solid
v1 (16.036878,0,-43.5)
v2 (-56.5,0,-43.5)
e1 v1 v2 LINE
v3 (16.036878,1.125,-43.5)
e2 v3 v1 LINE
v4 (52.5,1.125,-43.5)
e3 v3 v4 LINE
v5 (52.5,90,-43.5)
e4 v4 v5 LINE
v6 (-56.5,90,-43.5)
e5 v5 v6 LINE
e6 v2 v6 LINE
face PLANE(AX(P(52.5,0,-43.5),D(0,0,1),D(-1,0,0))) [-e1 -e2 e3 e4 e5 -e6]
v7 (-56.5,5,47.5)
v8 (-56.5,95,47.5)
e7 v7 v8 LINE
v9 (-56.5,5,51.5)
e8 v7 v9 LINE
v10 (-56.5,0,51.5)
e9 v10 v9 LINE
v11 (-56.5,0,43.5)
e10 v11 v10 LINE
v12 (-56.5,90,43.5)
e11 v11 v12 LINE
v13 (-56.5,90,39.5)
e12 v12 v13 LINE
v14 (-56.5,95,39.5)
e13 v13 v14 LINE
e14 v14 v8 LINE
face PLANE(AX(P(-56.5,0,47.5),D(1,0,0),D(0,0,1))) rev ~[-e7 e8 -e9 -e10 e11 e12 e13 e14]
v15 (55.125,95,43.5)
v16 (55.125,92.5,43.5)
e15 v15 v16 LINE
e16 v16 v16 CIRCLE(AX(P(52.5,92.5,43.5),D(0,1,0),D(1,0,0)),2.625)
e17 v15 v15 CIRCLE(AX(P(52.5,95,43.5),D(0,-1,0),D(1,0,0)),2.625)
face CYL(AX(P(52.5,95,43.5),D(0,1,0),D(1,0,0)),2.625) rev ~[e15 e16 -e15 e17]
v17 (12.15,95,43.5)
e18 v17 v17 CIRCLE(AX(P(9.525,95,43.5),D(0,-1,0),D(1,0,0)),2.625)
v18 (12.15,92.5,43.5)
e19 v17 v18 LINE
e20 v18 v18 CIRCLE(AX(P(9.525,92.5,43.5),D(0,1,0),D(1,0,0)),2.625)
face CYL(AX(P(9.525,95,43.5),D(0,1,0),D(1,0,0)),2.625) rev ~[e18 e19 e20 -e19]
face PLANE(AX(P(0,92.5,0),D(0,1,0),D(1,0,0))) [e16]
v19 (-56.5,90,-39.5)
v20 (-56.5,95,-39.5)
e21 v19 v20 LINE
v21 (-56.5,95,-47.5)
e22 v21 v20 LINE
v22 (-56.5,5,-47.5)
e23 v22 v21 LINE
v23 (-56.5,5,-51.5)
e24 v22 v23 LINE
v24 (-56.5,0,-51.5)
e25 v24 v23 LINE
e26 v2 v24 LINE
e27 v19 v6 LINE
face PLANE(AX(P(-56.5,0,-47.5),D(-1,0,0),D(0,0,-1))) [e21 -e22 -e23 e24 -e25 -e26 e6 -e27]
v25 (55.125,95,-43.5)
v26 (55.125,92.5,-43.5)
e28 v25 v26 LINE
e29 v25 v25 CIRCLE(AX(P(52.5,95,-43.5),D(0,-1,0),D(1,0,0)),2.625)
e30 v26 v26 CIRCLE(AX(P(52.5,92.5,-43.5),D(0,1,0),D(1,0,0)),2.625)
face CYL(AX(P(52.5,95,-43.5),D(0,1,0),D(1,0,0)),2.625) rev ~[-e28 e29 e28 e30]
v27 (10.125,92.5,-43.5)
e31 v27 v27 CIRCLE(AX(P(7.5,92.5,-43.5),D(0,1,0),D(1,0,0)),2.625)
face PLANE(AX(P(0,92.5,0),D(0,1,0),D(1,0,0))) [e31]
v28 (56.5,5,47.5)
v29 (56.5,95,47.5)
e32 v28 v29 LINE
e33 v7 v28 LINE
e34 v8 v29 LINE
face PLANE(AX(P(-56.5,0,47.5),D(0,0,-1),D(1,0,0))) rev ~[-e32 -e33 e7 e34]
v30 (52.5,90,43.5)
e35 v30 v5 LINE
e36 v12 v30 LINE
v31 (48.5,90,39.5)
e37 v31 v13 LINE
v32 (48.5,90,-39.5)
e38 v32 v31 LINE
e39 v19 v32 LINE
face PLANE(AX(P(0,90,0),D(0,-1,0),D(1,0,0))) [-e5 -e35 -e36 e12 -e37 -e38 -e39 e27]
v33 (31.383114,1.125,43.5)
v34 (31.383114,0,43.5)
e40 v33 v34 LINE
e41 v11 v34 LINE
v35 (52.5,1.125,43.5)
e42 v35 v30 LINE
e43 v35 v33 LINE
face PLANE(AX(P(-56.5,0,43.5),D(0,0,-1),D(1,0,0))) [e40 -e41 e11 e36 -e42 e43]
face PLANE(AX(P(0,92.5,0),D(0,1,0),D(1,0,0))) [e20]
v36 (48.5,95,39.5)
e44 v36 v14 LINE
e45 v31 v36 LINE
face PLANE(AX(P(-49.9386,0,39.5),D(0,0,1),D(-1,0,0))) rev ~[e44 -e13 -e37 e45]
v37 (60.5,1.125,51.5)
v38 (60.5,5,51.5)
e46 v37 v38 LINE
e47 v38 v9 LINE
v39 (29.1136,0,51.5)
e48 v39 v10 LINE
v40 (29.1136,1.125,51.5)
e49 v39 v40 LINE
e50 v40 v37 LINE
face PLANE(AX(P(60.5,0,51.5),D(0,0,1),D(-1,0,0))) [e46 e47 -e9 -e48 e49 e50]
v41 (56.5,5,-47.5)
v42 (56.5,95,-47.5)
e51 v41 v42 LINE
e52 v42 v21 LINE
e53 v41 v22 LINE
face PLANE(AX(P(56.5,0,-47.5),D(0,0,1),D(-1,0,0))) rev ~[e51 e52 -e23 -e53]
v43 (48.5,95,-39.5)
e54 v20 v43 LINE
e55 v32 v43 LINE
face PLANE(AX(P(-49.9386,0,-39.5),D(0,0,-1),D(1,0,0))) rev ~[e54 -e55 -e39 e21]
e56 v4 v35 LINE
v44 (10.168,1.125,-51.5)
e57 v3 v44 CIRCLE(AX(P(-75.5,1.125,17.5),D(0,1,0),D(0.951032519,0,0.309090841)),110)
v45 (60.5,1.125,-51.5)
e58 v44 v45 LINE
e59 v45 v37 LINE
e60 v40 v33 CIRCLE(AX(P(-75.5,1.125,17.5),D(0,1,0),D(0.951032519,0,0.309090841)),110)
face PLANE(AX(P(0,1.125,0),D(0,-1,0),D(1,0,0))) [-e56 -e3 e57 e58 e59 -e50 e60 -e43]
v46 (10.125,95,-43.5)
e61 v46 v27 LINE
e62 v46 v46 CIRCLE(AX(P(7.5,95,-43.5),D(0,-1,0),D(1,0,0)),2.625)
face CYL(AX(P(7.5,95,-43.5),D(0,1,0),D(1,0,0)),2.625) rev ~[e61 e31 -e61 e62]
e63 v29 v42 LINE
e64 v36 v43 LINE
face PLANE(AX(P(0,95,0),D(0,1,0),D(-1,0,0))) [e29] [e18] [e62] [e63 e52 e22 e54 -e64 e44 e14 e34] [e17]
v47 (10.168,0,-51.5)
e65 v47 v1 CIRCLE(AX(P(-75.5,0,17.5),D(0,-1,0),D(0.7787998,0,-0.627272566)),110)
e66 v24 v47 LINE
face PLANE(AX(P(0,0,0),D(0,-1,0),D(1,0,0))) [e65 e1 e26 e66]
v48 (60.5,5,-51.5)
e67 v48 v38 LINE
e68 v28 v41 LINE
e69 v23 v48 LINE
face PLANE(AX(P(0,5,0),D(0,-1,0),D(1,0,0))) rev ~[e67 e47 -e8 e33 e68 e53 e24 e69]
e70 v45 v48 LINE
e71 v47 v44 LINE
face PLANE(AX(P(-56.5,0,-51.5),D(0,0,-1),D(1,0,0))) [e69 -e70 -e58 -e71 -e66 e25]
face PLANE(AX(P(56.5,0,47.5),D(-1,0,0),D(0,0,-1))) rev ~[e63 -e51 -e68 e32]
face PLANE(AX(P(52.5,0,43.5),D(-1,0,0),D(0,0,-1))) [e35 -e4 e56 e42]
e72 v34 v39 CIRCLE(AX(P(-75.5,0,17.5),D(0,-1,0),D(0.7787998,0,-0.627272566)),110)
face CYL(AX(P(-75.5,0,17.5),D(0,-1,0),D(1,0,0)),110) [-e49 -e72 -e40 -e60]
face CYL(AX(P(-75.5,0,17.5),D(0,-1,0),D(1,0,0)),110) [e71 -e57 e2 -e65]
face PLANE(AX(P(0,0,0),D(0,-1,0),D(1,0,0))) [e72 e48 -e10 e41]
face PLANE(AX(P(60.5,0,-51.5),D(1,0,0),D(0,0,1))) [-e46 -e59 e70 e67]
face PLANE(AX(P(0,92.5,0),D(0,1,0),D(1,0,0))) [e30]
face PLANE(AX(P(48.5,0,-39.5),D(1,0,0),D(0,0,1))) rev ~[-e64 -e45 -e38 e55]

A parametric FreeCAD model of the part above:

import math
import FreeCAD as App
import Part
import Sketcher
from FreeCAD import Vector


def add_polygon(sketch, points):
    """Adds a closed chain of lines whose ends are joined by coincident constraints."""
    first, n = sketch.GeometryCount, len(points)
    for a, b in zip(points, points[1:] + points[:1]):
        sketch.addGeometry(Part.LineSegment(App.Vector(*a, 0), App.Vector(*b, 0)), False)
    for i in range(n):
        sketch.addConstraint(Sketcher.Constraint("Coincident", first + i, 2, first + (i + 1) % n, 1))

doc = App.newDocument("Part")
body = doc.addObject("PartDesign::Body", "Body")

sketch1 = body.newObject("Sketcher::SketchObject", "Sketch")
sketch1.AttachmentSupport = (doc.getObject("XZ_Plane"), [""])
sketch1.MapMode = "FlatFace"
add_polygon(sketch1, [(56.5, 47.5), (56.5, -47.5), (-56.5, -47.5), (-56.5, 47.5)])
sketch1.addConstraint(Sketcher.Constraint("Vertical", 0))
sketch1.addConstraint(Sketcher.Constraint("Horizontal", 1))
sketch1.addConstraint(Sketcher.Constraint("Vertical", 2))
sketch1.addConstraint(Sketcher.Constraint("Horizontal", 3))
sketch1.addConstraint(Sketcher.Constraint("Symmetric", 0, 2, 2, 2, -1, 1))
sketch1.addConstraint(Sketcher.Constraint("DistanceX", 1, 2, 1, 1, 113.0))
sketch1.addConstraint(Sketcher.Constraint("DistanceY", 0, 2, 0, 1, 95.0))
pad1 = body.newObject("PartDesign::Pad", "Pad")
pad1.Profile = sketch1
pad1.Length = 95
pad1.Reversed = True

sketch2 = body.newObject("Sketcher::SketchObject", "Sketch001")
sketch2.AttachmentSupport = (doc.getObject("XZ_Plane"), [""])
sketch2.MapMode = "FlatFace"
add_polygon(sketch2, [(48.5, 39.5), (-56.5, 39.5), (-56.5, -39.5), (48.5, -39.5)])
sketch2.addConstraint(Sketcher.Constraint("Horizontal", 0))
sketch2.addConstraint(Sketcher.Constraint("Vertical", 1))
sketch2.addConstraint(Sketcher.Constraint("Horizontal", 2))
sketch2.addConstraint(Sketcher.Constraint("Vertical", 3))
sketch2.addConstraint(Sketcher.Constraint("DistanceX", 0, 2, 0, 1, 105.0))
sketch2.addConstraint(Sketcher.Constraint("DistanceY", 1, 2, 1, 1, 79.0))
sketch2.addConstraint(Sketcher.Constraint("DistanceX", 0, 2, -1, 1, 56.5))
sketch2.addConstraint(Sketcher.Constraint("DistanceY", -1, 1, 0, 2, 39.5))
pocket1 = body.newObject("PartDesign::Pocket", "Pocket")
pocket1.Profile = sketch2
pocket1.Length = 115

sketch3 = body.newObject("Sketcher::SketchObject", "Sketch002")
sketch3.AttachmentSupport = (doc.getObject("XZ_Plane"), [""])
sketch3.MapMode = "FlatFace"
add_polygon(sketch3, [(52.5, 43.5), (-56.5, 43.5), (-56.5, 39.5), (48.5, 39.5), (48.5, -39.5), (-56.5, -39.5), (-56.5, -43.5), (52.5, -43.5)])
sketch3.addConstraint(Sketcher.Constraint("Horizontal", 0))
sketch3.addConstraint(Sketcher.Constraint("Vertical", 1))
sketch3.addConstraint(Sketcher.Constraint("Horizontal", 2))
sketch3.addConstraint(Sketcher.Constraint("Vertical", 3))
sketch3.addConstraint(Sketcher.Constraint("Horizontal", 4))
sketch3.addConstraint(Sketcher.Constraint("Vertical", 5))
sketch3.addConstraint(Sketcher.Constraint("Horizontal", 6))
sketch3.addConstraint(Sketcher.Constraint("Vertical", 7))
sketch3.addConstraint(Sketcher.Constraint("Symmetric", 1, 2, 4, 2, -1))
sketch3.addConstraint(Sketcher.Constraint("Equal", 1, 5))
sketch3.addConstraint(Sketcher.Constraint("DistanceY", 1, 2, 1, 1, 4.0))
sketch3.addConstraint(Sketcher.Constraint("DistanceX", 3, 2, 6, 2, 4.0))
sketch3.addConstraint(Sketcher.Constraint("DistanceX", 0, 2, 0, 1, 109.0))
sketch3.addConstraint(Sketcher.Constraint("DistanceY", 3, 2, 3, 1, 79.0))
sketch3.addConstraint(Sketcher.Constraint("DistanceX", 0, 2, -1, 1, 56.5))
pocket2 = body.newObject("PartDesign::Pocket", "Pocket001")
pocket2.Profile = sketch3
pocket2.Length = 90

sketch4 = body.newObject("Sketcher::SketchObject", "Sketch003")
sketch4.AttachmentSupport = (doc.getObject("XZ_Plane"), [""])
sketch4.MapMode = "FlatFace"
add_polygon(sketch4, [(56.5, 47.5), (56.5, -47.5), (-56.5, -47.5), (-56.5, -51.5), (60.5, -51.5), (60.5, 51.5), (-56.5, 51.5), (-56.5, 47.5)])
sketch4.addConstraint(Sketcher.Constraint("Vertical", 0))
sketch4.addConstraint(Sketcher.Constraint("Horizontal", 1))
sketch4.addConstraint(Sketcher.Constraint("Vertical", 2))
sketch4.addConstraint(Sketcher.Constraint("Horizontal", 3))
sketch4.addConstraint(Sketcher.Constraint("Vertical", 4))
sketch4.addConstraint(Sketcher.Constraint("Horizontal", 5))
sketch4.addConstraint(Sketcher.Constraint("Vertical", 6))
sketch4.addConstraint(Sketcher.Constraint("Horizontal", 7))
sketch4.addConstraint(Sketcher.Constraint("Symmetric", 0, 2, 6, 2, -1, 1))
sketch4.addConstraint(Sketcher.Constraint("Symmetric", 2, 2, 5, 2, -1))
sketch4.addConstraint(Sketcher.Constraint("DistanceY", 2, 2, 2, 1, 4.0))
sketch4.addConstraint(Sketcher.Constraint("DistanceX", 0, 2, 3, 2, 4.0))
sketch4.addConstraint(Sketcher.Constraint("DistanceX", 1, 2, 1, 1, 113.0))
sketch4.addConstraint(Sketcher.Constraint("DistanceY", 0, 2, 0, 1, 95.0))
pad2 = body.newObject("PartDesign::Pad", "Pad001")
pad2.Profile = sketch4
pad2.Length = 5
pad2.Reversed = True

sketch5 = body.newObject("Sketcher::SketchObject", "Sketch004")
sketch5.AttachmentSupport = (doc.getObject("XZ_Plane"), [""])
sketch5.MapMode = "FlatFace"
sketch5.addGeometry(Part.LineSegment(Vector(10.168, -51.5, 0), Vector(60.5, -51.5, 0)), False)
sketch5.addGeometry(Part.LineSegment(Vector(60.5, -51.5, 0), Vector(60.5, 51.5, 0)), False)
sketch5.addGeometry(Part.LineSegment(Vector(60.5, 51.5, 0), Vector(29.1136, 51.5, 0)), False)
sketch5.addGeometry(Part.ArcOfCircle(Part.Circle(Vector(-75.5, 17.5, 0), Vector(0, 0, 1), 110), math.radians(-38.849183), math.radians(18.004449)), False)
sketch5.addConstraint(Sketcher.Constraint("Coincident", 0, 2, 1, 1))
sketch5.addConstraint(Sketcher.Constraint("Coincident", 1, 2, 2, 1))
sketch5.addConstraint(Sketcher.Constraint("Coincident", 2, 2, 3, 2))
sketch5.addConstraint(Sketcher.Constraint("Coincident", 3, 1, 0, 1))
sketch5.addConstraint(Sketcher.Constraint("Horizontal", 0))
sketch5.addConstraint(Sketcher.Constraint("Vertical", 1))
sketch5.addConstraint(Sketcher.Constraint("Horizontal", 2))
sketch5.addConstraint(Sketcher.Constraint("Radius", 3, 110.0))
sketch5.addConstraint(Sketcher.Constraint("DistanceX", 3, 3, 0, 2, 136.0))
sketch5.addConstraint(Sketcher.Constraint("DistanceY", 1, 1, 1, 2, 103.0))
sketch5.addConstraint(Sketcher.Constraint("DistanceY", 0, 2, 3, 3, 69.0))
sketch5.addConstraint(Sketcher.Constraint("DistanceX", 3, 3, -1, 1, 75.5))
sketch5.addConstraint(Sketcher.Constraint("DistanceY", -1, 1, 3, 3, 17.5))
pocket3 = body.newObject("PartDesign::Pocket", "Pocket002")
pocket3.Profile = sketch5
pocket3.Length = 1.125

sketch6 = body.newObject("Sketcher::SketchObject", "Sketch005")
sketch6.AttachmentSupport = (doc.getObject("XZ_Plane"), [""])
sketch6.MapMode = "FlatFace"
sketch6.AttachmentOffset = App.Placement(Vector(0, 0, -95), App.Rotation())
sketch6.addGeometry(Part.Circle(Vector(9.525, 43.5, 0), Vector(0, 0, 1), 2.625), False)
sketch6.addGeometry(Part.Circle(Vector(7.5, -43.5, 0), Vector(0, 0, 1), 2.625), False)
sketch6.addGeometry(Part.Circle(Vector(52.5, -43.5, 0), Vector(0, 0, 1), 2.625), False)
sketch6.addGeometry(Part.Circle(Vector(52.5, 43.5, 0), Vector(0, 0, 1), 2.625), False)
sketch6.addConstraint(Sketcher.Constraint("Equal", 0, 1))
sketch6.addConstraint(Sketcher.Constraint("Equal", 1, 2))
sketch6.addConstraint(Sketcher.Constraint("Equal", 2, 3))
sketch6.addConstraint(Sketcher.Constraint("Symmetric", 2, 3, 3, 3, -1))
sketch6.addConstraint(Sketcher.Constraint("Horizontal", 1, 3, 2, 3))
sketch6.addConstraint(Sketcher.Constraint("Horizontal", 0, 3, 3, 3))
sketch6.addConstraint(Sketcher.Constraint("Diameter", 0, 5.25))
sketch6.addConstraint(Sketcher.Constraint("DistanceX", 1, 3, 2, 3, 45.0))
sketch6.addConstraint(Sketcher.Constraint("DistanceY", 1, 3, 0, 3, 87.0))
sketch6.addConstraint(Sketcher.Constraint("DistanceX", -1, 1, 1, 3, 7.5))
sketch6.addConstraint(Sketcher.Constraint("DistanceX", -1, 1, 0, 3, 9.525))
pocket4 = body.newObject("PartDesign::Pocket", "Pocket003")
pocket4.Profile = sketch6
pocket4.Length = 2.5
pocket4.Reversed = True

doc.recompute()
